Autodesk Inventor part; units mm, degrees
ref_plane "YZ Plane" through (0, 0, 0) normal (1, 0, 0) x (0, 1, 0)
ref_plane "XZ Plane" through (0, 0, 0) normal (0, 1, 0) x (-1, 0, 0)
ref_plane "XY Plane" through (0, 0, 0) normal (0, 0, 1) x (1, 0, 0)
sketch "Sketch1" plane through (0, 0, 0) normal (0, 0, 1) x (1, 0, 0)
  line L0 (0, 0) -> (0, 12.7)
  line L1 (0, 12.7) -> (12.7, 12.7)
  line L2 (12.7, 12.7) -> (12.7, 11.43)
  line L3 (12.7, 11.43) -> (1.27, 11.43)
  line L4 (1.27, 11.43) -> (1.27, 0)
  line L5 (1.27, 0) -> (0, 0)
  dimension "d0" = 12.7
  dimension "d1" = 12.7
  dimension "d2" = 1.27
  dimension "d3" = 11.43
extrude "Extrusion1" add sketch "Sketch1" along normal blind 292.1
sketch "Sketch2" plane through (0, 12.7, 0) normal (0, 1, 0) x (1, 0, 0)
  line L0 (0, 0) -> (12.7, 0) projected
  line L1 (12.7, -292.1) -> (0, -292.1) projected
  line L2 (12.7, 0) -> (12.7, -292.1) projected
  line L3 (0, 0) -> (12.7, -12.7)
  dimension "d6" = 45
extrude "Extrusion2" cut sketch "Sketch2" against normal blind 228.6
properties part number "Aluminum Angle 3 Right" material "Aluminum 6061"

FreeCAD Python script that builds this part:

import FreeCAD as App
import Part
import Sketcher

V = App.Vector
Q = App.Units.Quantity

doc = App.newDocument("Part")
body = doc.addObject("PartDesign::Body", "Body")

sketch1 = body.newObject("Sketcher::SketchObject", "Sketch")
sketch1.AttachmentSupport = (doc.getObject("XY_Plane"), [""])
sketch1.MapMode = "FlatFace"
sketch1.addGeometry(Part.LineSegment(V(0, 12.7, 0), V(0, 0, 0)), False)
sketch1.addGeometry(Part.LineSegment(V(0, 0, 0), V(1.27, 0, 0)), False)
sketch1.addGeometry(Part.LineSegment(V(1.27, 0, 0), V(1.27, 11.43, 0)), False)
sketch1.addGeometry(Part.LineSegment(V(1.27, 11.43, 0), V(12.7, 11.43, 0)), False)
sketch1.addGeometry(Part.LineSegment(V(12.7, 11.43, 0), V(12.7, 12.7, 0)), False)
sketch1.addGeometry(Part.LineSegment(V(12.7, 12.7, 0), V(0, 12.7, 0)), False)
sketch1.addConstraint(Sketcher.Constraint("Coincident", 0, 2, 1, 1))
sketch1.addConstraint(Sketcher.Constraint("Coincident", 1, 2, 2, 1))
sketch1.addConstraint(Sketcher.Constraint("Coincident", 2, 2, 3, 1))
sketch1.addConstraint(Sketcher.Constraint("Coincident", 3, 2, 4, 1))
sketch1.addConstraint(Sketcher.Constraint("Coincident", 4, 2, 5, 1))
sketch1.addConstraint(Sketcher.Constraint("Coincident", 5, 2, 0, 1))
sketch1.addConstraint(Sketcher.Constraint("Vertical", 0))
sketch1.addConstraint(Sketcher.Constraint("Horizontal", 1))
sketch1.addConstraint(Sketcher.Constraint("Vertical", 2))
sketch1.addConstraint(Sketcher.Constraint("Horizontal", 3))
sketch1.addConstraint(Sketcher.Constraint("Vertical", 4))
sketch1.addConstraint(Sketcher.Constraint("Horizontal", 5))
sketch1.addConstraint(Sketcher.Constraint("Coincident", 0, 2, -1, 1))
sketch1.addConstraint(Sketcher.Constraint("Equal", 5, 0))
sketch1.addConstraint(Sketcher.Constraint("Equal", 3, 2))
sketch1.addConstraint(Sketcher.Constraint("DistanceX", 5, 2, 5, 1, Q("0.5 in")))
sketch1.addConstraint(Sketcher.Constraint("DistanceX", 1, 1, 1, 2, Q("0.05 in")))
pad1 = body.newObject("PartDesign::Pad", "Pad")
pad1.Profile = sketch1
pad1.Length = Q("11.5 in")

sketch2 = body.newObject("Sketcher::SketchObject", "Sketch001")
sketch2.AttachmentSupport = (doc.getObject("XZ_Plane"), [""])
sketch2.MapMode = "FlatFace"
sketch2.AttachmentOffset = App.Placement(V(0, 0, -0.5 * 25.4), App.Rotation())
sketch2.addGeometry(Part.LineSegment(V(12.7, 0, 0), V(0, 0, 0)), False)
sketch2.addGeometry(Part.LineSegment(V(0, 0, 0), V(12.7, 12.7, 0)), False)
sketch2.addGeometry(Part.LineSegment(V(12.7, 12.7, 0), V(12.7, 0, 0)), False)
sketch2.addConstraint(Sketcher.Constraint("Coincident", 0, 2, 1, 1))
sketch2.addConstraint(Sketcher.Constraint("Coincident", 1, 2, 2, 1))
sketch2.addConstraint(Sketcher.Constraint("Coincident", 2, 2, 0, 1))
sketch2.addConstraint(Sketcher.Constraint("Horizontal", 0))
sketch2.addConstraint(Sketcher.Constraint("Vertical", 2))
sketch2.addConstraint(Sketcher.Constraint("Coincident", 0, 2, -1, 1))
sketch2.addConstraint(Sketcher.Constraint("Equal", 0, 2))
sketch2.addConstraint(Sketcher.Constraint("DistanceX", 0, 2, 0, 1, Q("0.5 in")))
pocket1 = body.newObject("PartDesign::Pocket", "Pocket")
pocket1.Profile = sketch2
pocket1.Length = Q("9 in")
pocket1.Reversed = True

doc.recompute()
